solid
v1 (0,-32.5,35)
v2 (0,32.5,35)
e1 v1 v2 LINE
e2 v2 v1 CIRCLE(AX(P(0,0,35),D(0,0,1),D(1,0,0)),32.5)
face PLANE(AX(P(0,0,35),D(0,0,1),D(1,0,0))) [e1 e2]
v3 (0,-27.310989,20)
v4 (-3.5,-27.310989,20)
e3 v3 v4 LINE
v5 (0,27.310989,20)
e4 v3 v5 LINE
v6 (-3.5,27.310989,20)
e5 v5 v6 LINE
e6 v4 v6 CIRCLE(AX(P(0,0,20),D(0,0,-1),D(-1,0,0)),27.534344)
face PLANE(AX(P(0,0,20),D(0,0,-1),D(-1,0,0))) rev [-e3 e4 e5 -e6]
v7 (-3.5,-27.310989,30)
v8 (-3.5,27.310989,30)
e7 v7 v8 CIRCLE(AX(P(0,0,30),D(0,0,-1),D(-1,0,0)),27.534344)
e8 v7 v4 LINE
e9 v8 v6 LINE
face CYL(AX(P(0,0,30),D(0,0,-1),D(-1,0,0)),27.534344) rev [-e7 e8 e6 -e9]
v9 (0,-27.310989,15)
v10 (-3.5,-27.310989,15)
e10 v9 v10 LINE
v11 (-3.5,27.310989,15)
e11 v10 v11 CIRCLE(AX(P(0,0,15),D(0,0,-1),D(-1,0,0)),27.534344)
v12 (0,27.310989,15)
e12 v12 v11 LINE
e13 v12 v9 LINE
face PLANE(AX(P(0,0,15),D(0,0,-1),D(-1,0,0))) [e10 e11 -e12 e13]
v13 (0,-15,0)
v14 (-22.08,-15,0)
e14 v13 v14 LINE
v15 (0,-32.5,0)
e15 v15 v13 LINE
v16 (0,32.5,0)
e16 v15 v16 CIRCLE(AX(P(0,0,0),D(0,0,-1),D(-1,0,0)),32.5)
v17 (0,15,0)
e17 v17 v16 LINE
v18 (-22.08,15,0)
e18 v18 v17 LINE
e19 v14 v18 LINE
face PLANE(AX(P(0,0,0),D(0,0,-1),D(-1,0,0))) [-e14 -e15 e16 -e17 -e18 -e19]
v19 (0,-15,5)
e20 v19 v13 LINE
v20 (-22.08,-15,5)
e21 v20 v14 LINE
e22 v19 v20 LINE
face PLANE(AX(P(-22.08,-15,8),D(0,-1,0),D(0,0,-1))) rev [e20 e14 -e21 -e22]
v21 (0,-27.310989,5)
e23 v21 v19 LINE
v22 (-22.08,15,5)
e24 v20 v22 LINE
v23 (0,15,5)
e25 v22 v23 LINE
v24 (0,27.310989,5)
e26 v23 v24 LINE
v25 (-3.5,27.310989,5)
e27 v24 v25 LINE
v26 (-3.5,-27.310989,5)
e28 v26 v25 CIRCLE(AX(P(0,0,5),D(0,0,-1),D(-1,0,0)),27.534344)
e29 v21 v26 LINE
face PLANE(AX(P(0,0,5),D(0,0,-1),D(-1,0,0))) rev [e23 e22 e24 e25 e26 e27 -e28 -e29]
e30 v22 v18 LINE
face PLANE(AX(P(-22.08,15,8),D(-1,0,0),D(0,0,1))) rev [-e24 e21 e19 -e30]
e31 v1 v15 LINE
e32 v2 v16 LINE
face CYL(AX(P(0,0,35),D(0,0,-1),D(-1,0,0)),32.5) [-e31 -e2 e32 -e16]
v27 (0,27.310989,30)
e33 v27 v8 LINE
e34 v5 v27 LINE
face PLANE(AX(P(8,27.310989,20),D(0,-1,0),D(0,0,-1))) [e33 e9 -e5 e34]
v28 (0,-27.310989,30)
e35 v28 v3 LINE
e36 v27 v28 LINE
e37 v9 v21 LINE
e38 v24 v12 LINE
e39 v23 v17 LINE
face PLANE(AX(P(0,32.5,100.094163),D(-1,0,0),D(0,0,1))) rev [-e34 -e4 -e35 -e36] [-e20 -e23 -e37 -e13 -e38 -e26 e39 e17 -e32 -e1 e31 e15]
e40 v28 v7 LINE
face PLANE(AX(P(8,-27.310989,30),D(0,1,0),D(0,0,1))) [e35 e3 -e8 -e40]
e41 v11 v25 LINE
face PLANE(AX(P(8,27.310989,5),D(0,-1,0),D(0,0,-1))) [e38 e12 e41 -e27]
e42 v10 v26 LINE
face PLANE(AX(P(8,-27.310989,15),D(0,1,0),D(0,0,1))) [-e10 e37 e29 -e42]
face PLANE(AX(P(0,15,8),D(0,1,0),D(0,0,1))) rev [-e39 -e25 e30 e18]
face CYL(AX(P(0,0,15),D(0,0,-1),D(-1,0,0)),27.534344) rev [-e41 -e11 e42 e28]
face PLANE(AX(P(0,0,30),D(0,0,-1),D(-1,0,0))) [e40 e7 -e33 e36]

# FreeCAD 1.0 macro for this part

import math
import FreeCAD as App
import Part
import Sketcher

V = App.Vector


def add_polygon(sketch, points):
    """Adds a closed chain of lines whose ends are joined by coincident constraints."""
    first, n = sketch.GeometryCount, len(points)
    for a, b in zip(points, points[1:] + points[:1]):
        sketch.addGeometry(Part.LineSegment(App.Vector(*a, 0), App.Vector(*b, 0)), False)
    for i in range(n):
        sketch.addConstraint(Sketcher.Constraint("Coincident", first + i, 2, first + (i + 1) % n, 1))

doc = App.newDocument("Part")
body = doc.addObject("PartDesign::Body", "Body")

# Sketch on XY plane
sketch1 = doc.addObject("Sketcher::SketchObject", "Sketch")
body.addObject(sketch1)
sketch1.AttachmentSupport = (doc.XY_Plane, [""])
sketch1.MapMode = "FlatFace"
sketch1.addGeometry(Part.LineSegment(V(-4, -32, 0), V(-4, 32, 0)), False)
sketch1.addGeometry(Part.ArcOfCircle(Part.Circle(V(0, 0, 0), V(0, 0, 1), 32), math.radians(96), math.radians(264)), False)
sketch1.addConstraint(Sketcher.Constraint("Coincident", 0, 1, 1, 2))
sketch1.addConstraint(Sketcher.Constraint("Coincident", 1, 1, 0, 2))
sketch1.addConstraint(Sketcher.Constraint("Vertical", 0))
sketch1.addConstraint(Sketcher.Constraint("Coincident", 1, 3, -1, 1))
sketch1.addConstraint(Sketcher.Constraint("Radius", 1, 32.5))
sketch1.addConstraint(Sketcher.Constraint("DistanceX", 0, 1, -1, 1, 3.5))
pad1 = doc.addObject("PartDesign::Pad", "Pad")
body.addObject(pad1)
pad1.Profile = sketch1
pad1.Length = 35

# Sketch on XY plane
sketch2 = doc.addObject("Sketcher::SketchObject", "Sketch001")
body.addObject(sketch2)
sketch2.AttachmentSupport = (doc.XY_Plane, [""])
sketch2.MapMode = "FlatFace"
sketch2.AttachmentOffset = App.Placement(V(0, 0, 5), App.Rotation())
sketch2.addGeometry(Part.ArcOfCircle(Part.Circle(V(0, 0, 0), V(0, 0, 1), 28), math.radians(97), math.radians(263)), False)
sketch2.addGeometry(Part.LineSegment(V(-4, 27, 0), V(-4, -27, 0)), False)
sketch2.addConstraint(Sketcher.Constraint("Coincident", 0, 1, 1, 1))
sketch2.addConstraint(Sketcher.Constraint("Coincident", 1, 2, 0, 2))
sketch2.addConstraint(Sketcher.Constraint("Vertical", 1))
sketch2.addConstraint(Sketcher.Constraint("Coincident", 0, 3, -1, 1))
sketch2.addConstraint(Sketcher.Constraint("DistanceX", 0, 1, -1, 1, 3.5))
sketch2.addConstraint(Sketcher.Constraint("Radius", 0, 27.534344))
pocket1 = doc.addObject("PartDesign::Pocket", "Pocket")
body.addObject(pocket1)
pocket1.Profile = sketch2
pocket1.Length = 10
pocket1.Reversed = True

# Sketch on XY plane
sketch3 = doc.addObject("Sketcher::SketchObject", "Sketch002")
body.addObject(sketch3)
sketch3.AttachmentSupport = (doc.XY_Plane, [""])
sketch3.MapMode = "FlatFace"
sketch3.AttachmentOffset = App.Placement(V(0, 0, 20), App.Rotation())
sketch3.addGeometry(Part.ArcOfCircle(Part.Circle(V(0, 0, 0), V(0, 0, 1), 28), math.radians(97), math.radians(263)), False)
sketch3.addGeometry(Part.LineSegment(V(-4, 27, 0), V(-4, -27, 0)), False)
sketch3.addConstraint(Sketcher.Constraint("Coincident", 0, 1, 1, 1))
sketch3.addConstraint(Sketcher.Constraint("Coincident", 1, 2, 0, 2))
sketch3.addConstraint(Sketcher.Constraint("Vertical", 1))
sketch3.addConstraint(Sketcher.Constraint("Coincident", 0, 3, -1, 1))
sketch3.addConstraint(Sketcher.Constraint("DistanceX", 0, 1, -1, 1, 3.5))
sketch3.addConstraint(Sketcher.Constraint("Radius", 0, 27.534344))
pocket2 = doc.addObject("PartDesign::Pocket", "Pocket001")
body.addObject(pocket2)
pocket2.Profile = sketch3
pocket2.Length = 10
pocket2.Reversed = True

# Sketch on XY plane
sketch4 = doc.addObject("Sketcher::SketchObject", "Sketch003")
body.addObject(sketch4)
sketch4.AttachmentSupport = (doc.XY_Plane, [""])
sketch4.MapMode = "FlatFace"
sketch4.addGeometry(Part.Circle(V(0, 0, 0), V(0, 0, 1), 32), False)
sketch4.addConstraint(Sketcher.Constraint("Coincident", 0, 3, -1, 1))
sketch4.addConstraint(Sketcher.Constraint("Diameter", 0, 65.0))
pad2 = doc.addObject("PartDesign::Pad", "Pad001")
body.addObject(pad2)
pad2.Profile = sketch4
pad2.Length = 4
pad2.Midplane = True

# Sketch on XY plane
sketch5 = doc.addObject("Sketcher::SketchObject", "Sketch004")
body.addObject(sketch5)
sketch5.AttachmentSupport = (doc.XY_Plane, [""])
sketch5.MapMode = "FlatFace"
sketch5.addGeometry(Part.LineSegment(V(-4, 32, 0), V(-4, -32, 0)), False)
sketch5.addGeometry(Part.ArcOfCircle(Part.Circle(V(0, 0, 0), V(0, 0, 1), 32), math.radians(-96), math.radians(96)), False)
sketch5.addConstraint(Sketcher.Constraint("Coincident", 0, 1, 1, 2))
sketch5.addConstraint(Sketcher.Constraint("Coincident", 1, 1, 0, 2))
sketch5.addConstraint(Sketcher.Constraint("Vertical", 0))
sketch5.addConstraint(Sketcher.Constraint("Coincident", 1, 3, -1, 1))
sketch5.addConstraint(Sketcher.Constraint("Radius", 1, 32.5))
sketch5.addConstraint(Sketcher.Constraint("DistanceX", 0, 1, -1, 1, 3.5))
pocket3 = doc.addObject("PartDesign::Pocket", "Pocket002")
body.addObject(pocket3)
pocket3.Profile = sketch5
pocket3.Length = 2
pocket3.Reversed = True

# Sketch on XY plane
sketch6 = doc.addObject("Sketcher::SketchObject", "Sketch005")
body.addObject(sketch6)
sketch6.AttachmentSupport = (doc.XY_Plane, [""])
sketch6.MapMode = "FlatFace"
sketch6.AttachmentOffset = App.Placement(V(0, 0, -2), App.Rotation())
sketch6.addGeometry(Part.Circle(V(0, 0, 0), V(0, 0, 1), 2.5), False)
sketch6.addConstraint(Sketcher.Constraint("Coincident", 0, 3, -1, 1))
sketch6.addConstraint(Sketcher.Constraint("Diameter", 0, 5.0))
pocket4 = doc.addObject("PartDesign::Pocket", "Pocket003")
body.addObject(pocket4)
pocket4.Profile = sketch6
pocket4.Type = "ThroughAll"
pocket4.Reversed = True

# Sketch on XY plane
sketch7 = doc.addObject("Sketcher::SketchObject", "Sketch006")
body.addObject(sketch7)
sketch7.AttachmentSupport = (doc.XY_Plane, [""])
sketch7.MapMode = "FlatFace"
sketch7.addGeometry(Part.LineSegment(V(0, -32.5, 0), V(0, 32.5, 0)), False)
sketch7.addGeometry(Part.ArcOfCircle(Part.Circle(V(0, 0, 0), V(0, 0, 1), 32.5), math.radians(90), math.radians(96.18)), False)
sketch7.addGeometry(Part.LineSegment(V(-3.5, 32.3, 0), V(-3.5, -32.3, 0)), False)
sketch7.addGeometry(Part.ArcOfCircle(Part.Circle(V(0, 0, 0), V(0, 0, 1), 32.5), math.radians(-96.18), math.radians(-90)), False)
sketch7.addConstraint(Sketcher.Constraint("Coincident", 0, 2, 1, 1))
sketch7.addConstraint(Sketcher.Constraint("Coincident", 1, 2, 2, 1))
sketch7.addConstraint(Sketcher.Constraint("Coincident", 2, 2, 3, 1))
sketch7.addConstraint(Sketcher.Constraint("Coincident", 3, 2, 0, 1))
sketch7.addConstraint(Sketcher.Constraint("Vertical", 0))
sketch7.addConstraint(Sketcher.Constraint("Vertical", 2))
sketch7.addConstraint(Sketcher.Constraint("Coincident", 1, 3, -1, 1))
sketch7.addConstraint(Sketcher.Constraint("Coincident", 3, 3, -1, 1))
sketch7.addConstraint(Sketcher.Constraint("Equal", 1, 3))
sketch7.addConstraint(Sketcher.Constraint("PointOnObject", 0, 2, -2))
sketch7.addConstraint(Sketcher.Constraint("Radius", 1, 32.5))
sketch7.addConstraint(Sketcher.Constraint("DistanceX", 1, 2, -1, 1, 3.5))
pad3 = doc.addObject("PartDesign::Pad", "Pad002")
body.addObject(pad3)
pad3.Profile = sketch7
pad3.Length = 35

# Sketch on YZ plane
sketch8 = doc.addObject("Sketcher::SketchObject", "Sketch007")
body.addObject(sketch8)
sketch8.AttachmentSupport = (doc.YZ_Plane, [""])
sketch8.MapMode = "FlatFace"
sketch8.AttachmentOffset = App.Placement(V(0, 0, -3.5), App.Rotation())
add_polygon(sketch8, [(27, 15), (-27, 15), (-27, 5), (27, 5)])  # lines 0-3
add_polygon(sketch8, [(27, 30), (-27, 30), (-27, 20), (27, 20)])  # lines 4-7
sketch8.addConstraint(Sketcher.Constraint("Horizontal", 0))
sketch8.addConstraint(Sketcher.Constraint("Vertical", 1))
sketch8.addConstraint(Sketcher.Constraint("Horizontal", 2))
sketch8.addConstraint(Sketcher.Constraint("Vertical", 3))
sketch8.addConstraint(Sketcher.Constraint("Horizontal", 4))
sketch8.addConstraint(Sketcher.Constraint("Vertical", 5))
sketch8.addConstraint(Sketcher.Constraint("Horizontal", 6))
sketch8.addConstraint(Sketcher.Constraint("Vertical", 7))
sketch8.addConstraint(Sketcher.Constraint("Vertical", 1, 2, 4, 2))
sketch8.addConstraint(Sketcher.Constraint("Vertical", 3, 2, 6, 2))
sketch8.addConstraint(Sketcher.Constraint("Equal", 3, 5))
sketch8.addConstraint(Sketcher.Constraint("DistanceY", 1, 2, 1, 1, 10.0))
sketch8.addConstraint(Sketcher.Constraint("DistanceY", -1, 1, 0, 2, 15.0))
sketch8.addConstraint(Sketcher.Constraint("DistanceY", -1, 1, 4, 2, 30.0))
sketch8.addConstraint(Sketcher.Constraint("DistanceX", 0, 2, 0, 1, 54.621978))
sketch8.addConstraint(Sketcher.Constraint("DistanceX", 0, 2, -1, 1, 27.310989))
pocket5 = doc.addObject("PartDesign::Pocket", "Pocket004")
body.addObject(pocket5)
pocket5.Profile = sketch8
pocket5.Length = 11.5
pocket5.Reversed = True

# Sketch on XY plane
sketch9 = doc.addObject("Sketcher::SketchObject", "Sketch008")
body.addObject(sketch9)
sketch9.AttachmentSupport = (doc.XY_Plane, [""])
sketch9.MapMode = "FlatFace"
sketch9.AttachmentOffset = App.Placement(V(0, 0, -2), App.Rotation())
sketch9.addGeometry(Part.Circle(V(0, 0, 0), V(0, 0, 1), 2.5), False)
sketch9.addConstraint(Sketcher.Constraint("Coincident", 0, 3, -1, 1))
sketch9.addConstraint(Sketcher.Constraint("Diameter", 0, 5.0))
pocket6 = doc.addObject("PartDesign::Pocket", "Pocket005")
body.addObject(pocket6)
pocket6.Profile = sketch9
pocket6.Length = 10
pocket6.Reversed = True

# Sketch on XY plane
sketch10 = doc.addObject("Sketcher::SketchObject", "Sketch009")
body.addObject(sketch10)
sketch10.AttachmentSupport = (doc.XY_Plane, [""])
sketch10.MapMode = "FlatFace"
sketch10.AttachmentOffset = App.Placement(V(0, 0, -2), App.Rotation())
sketch10.addGeometry(Part.Circle(V(0, 0, 0), V(0, 0, 1), 35), False)
sketch10.addConstraint(Sketcher.Constraint("Coincident", 0, 3, -1, 1))
sketch10.addConstraint(Sketcher.Constraint("Diameter", 0, 70.033872))
pocket7 = doc.addObject("PartDesign::Pocket", "Pocket006")
body.addObject(pocket7)
pocket7.Profile = sketch10
pocket7.Length = 2
pocket7.Reversed = True

# Sketch on XY plane
sketch11 = doc.addObject("Sketcher::SketchObject", "Sketch010")
body.addObject(sketch11)
sketch11.AttachmentSupport = (doc.XY_Plane, [""])
sketch11.MapMode = "FlatFace"
sketch11.addGeometry(Part.Circle(V(0, 0, 0), V(0, 0, 1), 6), False)
sketch11.addConstraint(Sketcher.Constraint("Coincident", 0, 3, -1, 1))
sketch11.addConstraint(Sketcher.Constraint("Diameter", 0, 12.0))
pocket8 = doc.addObject("PartDesign::Pocket", "Pocket007")
body.addObject(pocket8)
pocket8.Profile = sketch11
pocket8.Length = 8
pocket8.Reversed = True

# Sketch on XY plane
sketch12 = doc.addObject("Sketcher::SketchObject", "Sketch011")
body.addObject(sketch12)
sketch12.AttachmentSupport = (doc.XY_Plane, [""])
sketch12.MapMode = "FlatFace"
add_polygon(sketch12, [(0, 15), (0, -15), (-22, -15), (-22, 15)])  # lines 0-3
sketch12.addConstraint(Sketcher.Constraint("Vertical", 0))
sketch12.addConstraint(Sketcher.Constraint("Horizontal", 1))
sketch12.addConstraint(Sketcher.Constraint("Vertical", 2))
sketch12.addConstraint(Sketcher.Constraint("Horizontal", 3))
sketch12.addConstraint(Sketcher.Constraint("Symmetric", 0, 2, 3, 2, -1, 1))
sketch12.addConstraint(Sketcher.Constraint("DistanceY", 0, 2, 0, 1, 30.0))
sketch12.addConstraint(Sketcher.Constraint("DistanceX", 1, 2, 1, 1, 22.08))
pocket9 = doc.addObject("PartDesign::Pocket", "Pocket008")
body.addObject(pocket9)
pocket9.Profile = sketch12
pocket9.Length = 8
pocket9.Reversed = True

doc.recompute()
